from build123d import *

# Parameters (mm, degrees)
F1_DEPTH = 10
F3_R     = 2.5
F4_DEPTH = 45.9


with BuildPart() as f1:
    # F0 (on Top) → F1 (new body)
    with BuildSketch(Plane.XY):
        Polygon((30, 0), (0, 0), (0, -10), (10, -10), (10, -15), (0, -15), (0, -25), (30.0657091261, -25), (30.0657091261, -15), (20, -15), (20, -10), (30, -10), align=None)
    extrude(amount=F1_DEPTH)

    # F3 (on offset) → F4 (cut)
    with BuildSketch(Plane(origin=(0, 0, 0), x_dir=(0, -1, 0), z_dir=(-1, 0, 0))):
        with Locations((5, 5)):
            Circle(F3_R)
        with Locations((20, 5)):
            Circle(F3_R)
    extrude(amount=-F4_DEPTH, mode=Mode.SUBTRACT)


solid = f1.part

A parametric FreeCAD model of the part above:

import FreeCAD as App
import Part
import Sketcher

V = App.Vector

doc = App.newDocument("Part")
body = doc.addObject("PartDesign::Body", "Body")

# Sketch on XY plane
sketch1 = doc.addObject("Sketcher::SketchObject", "Sketch")
body.addObject(sketch1)
sketch1.AttachmentSupport = (doc.XY_Plane, [""])
sketch1.MapMode = "FlatFace"
sketch1.addGeometry([
    Part.LineSegment(V(30, 0, 0), V(0, 0, 0)),  # 0
    Part.LineSegment(V(0, 0, 0), V(0, -10, 0)),  # 1
    Part.LineSegment(V(0, -10, 0), V(10, -10, 0)),  # 2
    Part.LineSegment(V(10, -10, 0), V(10, -15, 0)),  # 3
    Part.LineSegment(V(10, -15, 0), V(0, -15, 0)),  # 4
    Part.LineSegment(V(0, -15, 0), V(0, -25, 0)),  # 5
    Part.LineSegment(V(0, -25, 0), V(30, -25, 0)),  # 6
    Part.LineSegment(V(30, -25, 0), V(30, -15, 0)),  # 7
    Part.LineSegment(V(30, -15, 0), V(20, -15, 0)),  # 8
    Part.LineSegment(V(20, -15, 0), V(20, -10, 0)),  # 9
    Part.LineSegment(V(20, -10, 0), V(30, -10, 0)),  # 10
    Part.LineSegment(V(30, -10, 0), V(30, 0, 0)),  # 11
], False)
sketch1.addConstraint([
    Sketcher.Constraint("Coincident", 0, 2, 1, 1),
    Sketcher.Constraint("Coincident", 1, 2, 2, 1),
    Sketcher.Constraint("Coincident", 2, 2, 3, 1),
    Sketcher.Constraint("Coincident", 3, 2, 4, 1),
    Sketcher.Constraint("Coincident", 4, 2, 5, 1),
    Sketcher.Constraint("Coincident", 5, 2, 6, 1),
    Sketcher.Constraint("Coincident", 6, 2, 7, 1),
    Sketcher.Constraint("Coincident", 7, 2, 8, 1),
    Sketcher.Constraint("Coincident", 8, 2, 9, 1),
    Sketcher.Constraint("Coincident", 9, 2, 10, 1),
    Sketcher.Constraint("Coincident", 10, 2, 11, 1),
    Sketcher.Constraint("Coincident", 11, 2, 0, 1),
    Sketcher.Constraint("Horizontal", 0),
    Sketcher.Constraint("Vertical", 1),
    Sketcher.Constraint("Horizontal", 2),
    Sketcher.Constraint("Vertical", 3),
    Sketcher.Constraint("Horizontal", 4),
    Sketcher.Constraint("Vertical", 5),
    Sketcher.Constraint("Horizontal", 6),
    Sketcher.Constraint("Vertical", 7),
    Sketcher.Constraint("Horizontal", 8),
    Sketcher.Constraint("Vertical", 9),
    Sketcher.Constraint("Horizontal", 10),
    Sketcher.Constraint("Vertical", 11),
    Sketcher.Constraint("Coincident", 0, 2, -1, 1),
    Sketcher.Constraint("PointOnObject", 4, 2, -2),
    Sketcher.Constraint("Horizontal", 4, 2, 7, 2),
    Sketcher.Constraint("Horizontal", 2, 2, 9, 2),
    Sketcher.Constraint("Equal", 4, 10),
    Sketcher.Constraint("Equal", 10, 1),
    Sketcher.Constraint("Equal", 1, 5),
    Sketcher.Constraint("DistanceX", 0, 2, 0, 1, 30.0),
    Sketcher.Constraint("DistanceX", 2, 1, 2, 2, 10.0),
    Sketcher.Constraint("DistanceY", 3, 2, 3, 1, 5.0),
    Sketcher.Constraint("DistanceX", 6, 1, 6, 2, 30.065709),
])
pad1 = doc.addObject("PartDesign::Pad", "Pad")
body.addObject(pad1)
pad1.Profile = sketch1
pad1.Length = 10

# Sketch on YZ plane
sketch2 = doc.addObject("Sketcher::SketchObject", "Sketch001")
body.addObject(sketch2)
sketch2.AttachmentSupport = (doc.YZ_Plane, [""])
sketch2.MapMode = "FlatFace"
sketch2.addGeometry([
    Part.Circle(V(-5, 5, 0), V(0, 0, 1), 2.5),
    Part.Circle(V(-20, 5, 0), V(0, 0, 1), 2.5),
], False)
sketch2.addConstraint([
    Sketcher.Constraint("Equal", 0, 1),
    Sketcher.Constraint("Horizontal", 0, 3, 1, 3),
    Sketcher.Constraint("Diameter", 0, 5.0),
    Sketcher.Constraint("DistanceX", 0, 3, -1, 1, 5.0),
    Sketcher.Constraint("DistanceY", -1, 1, 0, 3, 5.0),
    Sketcher.Constraint("DistanceX", 1, 3, -1, 1, 20.0),
])
pocket1 = doc.addObject("PartDesign::Pocket", "Pocket")
body.addObject(pocket1)
pocket1.Profile = sketch2
pocket1.Length = 45.9
pocket1.Reversed = True

doc.recompute()
